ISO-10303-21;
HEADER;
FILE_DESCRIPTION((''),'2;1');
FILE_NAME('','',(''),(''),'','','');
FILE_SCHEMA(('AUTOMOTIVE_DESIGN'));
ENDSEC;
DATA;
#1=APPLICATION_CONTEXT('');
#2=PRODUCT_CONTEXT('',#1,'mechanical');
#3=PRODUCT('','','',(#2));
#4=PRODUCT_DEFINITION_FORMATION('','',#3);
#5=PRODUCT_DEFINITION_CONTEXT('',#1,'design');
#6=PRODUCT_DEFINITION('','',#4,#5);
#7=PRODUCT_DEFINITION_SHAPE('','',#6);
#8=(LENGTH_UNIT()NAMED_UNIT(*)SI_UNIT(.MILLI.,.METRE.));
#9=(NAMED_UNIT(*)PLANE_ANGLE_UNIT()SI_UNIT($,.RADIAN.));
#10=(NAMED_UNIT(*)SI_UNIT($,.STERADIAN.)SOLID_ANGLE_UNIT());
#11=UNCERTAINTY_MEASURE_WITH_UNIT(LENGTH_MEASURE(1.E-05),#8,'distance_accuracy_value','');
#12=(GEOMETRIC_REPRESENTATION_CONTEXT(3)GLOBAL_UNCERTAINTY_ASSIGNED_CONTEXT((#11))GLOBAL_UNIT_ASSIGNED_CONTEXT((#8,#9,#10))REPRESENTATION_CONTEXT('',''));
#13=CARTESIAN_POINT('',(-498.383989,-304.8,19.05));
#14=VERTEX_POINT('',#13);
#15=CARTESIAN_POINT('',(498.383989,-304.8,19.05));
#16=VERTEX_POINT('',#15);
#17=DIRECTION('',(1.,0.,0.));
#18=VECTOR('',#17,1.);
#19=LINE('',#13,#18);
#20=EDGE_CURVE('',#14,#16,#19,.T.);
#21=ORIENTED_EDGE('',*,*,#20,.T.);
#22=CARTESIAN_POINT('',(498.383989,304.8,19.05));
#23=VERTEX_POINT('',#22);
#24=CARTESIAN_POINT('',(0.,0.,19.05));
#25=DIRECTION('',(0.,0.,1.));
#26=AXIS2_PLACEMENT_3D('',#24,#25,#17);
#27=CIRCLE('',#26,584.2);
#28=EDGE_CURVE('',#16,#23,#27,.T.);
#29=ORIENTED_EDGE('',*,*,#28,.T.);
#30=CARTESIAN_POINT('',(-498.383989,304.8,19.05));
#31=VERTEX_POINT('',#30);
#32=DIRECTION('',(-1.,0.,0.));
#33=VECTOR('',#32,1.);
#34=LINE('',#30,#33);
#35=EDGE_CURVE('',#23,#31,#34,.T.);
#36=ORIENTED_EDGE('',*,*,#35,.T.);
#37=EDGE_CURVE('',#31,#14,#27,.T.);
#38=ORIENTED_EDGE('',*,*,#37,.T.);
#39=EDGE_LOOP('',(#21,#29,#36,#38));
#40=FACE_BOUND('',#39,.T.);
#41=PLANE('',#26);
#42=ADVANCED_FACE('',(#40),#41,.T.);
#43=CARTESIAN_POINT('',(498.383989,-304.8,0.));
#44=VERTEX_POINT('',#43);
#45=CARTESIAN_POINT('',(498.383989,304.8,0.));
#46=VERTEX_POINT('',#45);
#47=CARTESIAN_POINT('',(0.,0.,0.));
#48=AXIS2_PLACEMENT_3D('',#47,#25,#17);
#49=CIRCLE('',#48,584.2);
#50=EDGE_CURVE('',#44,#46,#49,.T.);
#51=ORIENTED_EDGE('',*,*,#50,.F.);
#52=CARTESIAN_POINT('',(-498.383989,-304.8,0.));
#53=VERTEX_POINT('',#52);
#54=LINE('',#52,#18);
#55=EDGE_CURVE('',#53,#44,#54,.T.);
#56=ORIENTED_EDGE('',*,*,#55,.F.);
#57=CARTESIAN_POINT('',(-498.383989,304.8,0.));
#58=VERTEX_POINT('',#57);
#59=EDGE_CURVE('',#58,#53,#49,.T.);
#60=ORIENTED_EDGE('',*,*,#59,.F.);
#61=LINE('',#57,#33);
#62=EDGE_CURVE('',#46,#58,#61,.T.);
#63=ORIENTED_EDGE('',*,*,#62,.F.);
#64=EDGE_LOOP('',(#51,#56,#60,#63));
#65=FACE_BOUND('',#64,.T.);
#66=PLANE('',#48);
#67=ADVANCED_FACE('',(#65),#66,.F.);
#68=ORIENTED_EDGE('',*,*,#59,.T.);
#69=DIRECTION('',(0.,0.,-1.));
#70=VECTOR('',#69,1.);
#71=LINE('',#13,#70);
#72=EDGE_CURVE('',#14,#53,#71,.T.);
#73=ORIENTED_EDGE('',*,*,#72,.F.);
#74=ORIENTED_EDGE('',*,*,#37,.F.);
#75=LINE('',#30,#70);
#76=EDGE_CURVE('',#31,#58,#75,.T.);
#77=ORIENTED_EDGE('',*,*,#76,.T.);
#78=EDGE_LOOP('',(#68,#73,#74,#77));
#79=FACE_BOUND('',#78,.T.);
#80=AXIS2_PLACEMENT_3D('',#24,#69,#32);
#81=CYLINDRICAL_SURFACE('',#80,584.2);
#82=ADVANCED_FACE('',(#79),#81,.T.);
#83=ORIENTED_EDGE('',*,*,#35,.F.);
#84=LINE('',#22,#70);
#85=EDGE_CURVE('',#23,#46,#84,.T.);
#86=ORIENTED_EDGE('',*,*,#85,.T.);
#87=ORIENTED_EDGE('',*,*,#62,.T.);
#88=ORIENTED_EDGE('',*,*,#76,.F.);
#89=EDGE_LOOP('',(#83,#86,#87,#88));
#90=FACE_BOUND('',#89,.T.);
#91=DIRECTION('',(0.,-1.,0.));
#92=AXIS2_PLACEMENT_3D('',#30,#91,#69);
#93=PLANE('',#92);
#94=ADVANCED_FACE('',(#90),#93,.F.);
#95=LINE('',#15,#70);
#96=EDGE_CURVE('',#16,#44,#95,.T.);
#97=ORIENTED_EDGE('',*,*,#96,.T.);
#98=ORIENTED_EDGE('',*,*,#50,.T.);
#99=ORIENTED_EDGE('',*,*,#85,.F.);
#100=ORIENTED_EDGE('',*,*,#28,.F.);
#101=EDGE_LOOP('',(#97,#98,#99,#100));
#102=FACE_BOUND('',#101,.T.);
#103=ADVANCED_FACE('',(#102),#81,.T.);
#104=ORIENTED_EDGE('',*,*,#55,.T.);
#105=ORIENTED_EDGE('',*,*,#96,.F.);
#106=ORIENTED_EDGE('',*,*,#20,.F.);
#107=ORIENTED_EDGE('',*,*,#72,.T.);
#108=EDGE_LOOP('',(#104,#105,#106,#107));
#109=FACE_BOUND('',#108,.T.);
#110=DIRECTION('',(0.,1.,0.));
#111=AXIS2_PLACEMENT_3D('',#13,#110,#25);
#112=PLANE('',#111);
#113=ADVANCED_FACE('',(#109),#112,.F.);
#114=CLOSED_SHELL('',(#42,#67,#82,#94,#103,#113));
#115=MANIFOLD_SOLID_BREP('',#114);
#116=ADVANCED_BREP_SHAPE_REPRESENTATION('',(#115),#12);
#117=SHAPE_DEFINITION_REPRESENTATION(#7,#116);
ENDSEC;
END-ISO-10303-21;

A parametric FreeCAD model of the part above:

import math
import FreeCAD as App
import Part
import Sketcher
from FreeCAD import Vector
Q = App.Units.Quantity

doc = App.newDocument("Part")
params = doc.addObject("Spreadsheet::Sheet", "Params")
for row, (alias, value) in enumerate([
    ("sketch1_radius", "23 in"),
    ("pad1_length", "0.75 in"),
], start=1):
    params.set(f"A{row}", alias)
    params.set(f"B{row}", "=" + value)
    params.setAlias(f"B{row}", alias)

body = doc.addObject("PartDesign::Body", "Body")

sketch1 = body.newObject("Sketcher::SketchObject", "Sketch")
sketch1.AttachmentSupport = (doc.getObject("XY_Plane"), [""])
sketch1.MapMode = "FlatFace"
sketch1.addGeometry(Part.LineSegment(Vector(498.383989, 304.8, 0), Vector(-498.383989, 304.8, 0)), False)
sketch1.addGeometry(Part.ArcOfCircle(Part.Circle(Vector(0, 0, 0), Vector(0, 0, 1), 584.2), math.radians(148.551019), math.radians(211.448981)), False)
sketch1.addGeometry(Part.LineSegment(Vector(-498.383989, -304.8, 0), Vector(498.383989, -304.8, 0)), False)
sketch1.addGeometry(Part.ArcOfCircle(Part.Circle(Vector(0, 0, 0), Vector(0, 0, 1), 584.2), math.radians(-31.448981), math.radians(31.448981)), False)
sketch1.addConstraint(Sketcher.Constraint("Coincident", 0, 2, 1, 1))
sketch1.addConstraint(Sketcher.Constraint("Coincident", 1, 2, 2, 1))
sketch1.addConstraint(Sketcher.Constraint("Coincident", 2, 2, 3, 1))
sketch1.addConstraint(Sketcher.Constraint("Coincident", 3, 2, 0, 1))
sketch1.addConstraint(Sketcher.Constraint("Horizontal", 0))
sketch1.addConstraint(Sketcher.Constraint("Horizontal", 2))
sketch1.addConstraint(Sketcher.Constraint("Coincident", 1, 3, -1, 1))
sketch1.addConstraint(Sketcher.Constraint("Coincident", 3, 3, -1, 1))
sketch1.addConstraint(Sketcher.Constraint("Equal", 1, 3))
sketch1.addConstraint(Sketcher.Constraint("Equal", 0, 2))
sketch1.addConstraint(Sketcher.Constraint("Radius", 1, Q("23 in")))
sketch1.addConstraint(Sketcher.Constraint("DistanceY", -1, 1, 0, 2, Q("12 in")))
sketch1.setExpression("Constraints[10]", "Params.sketch1_radius")
pad1 = body.newObject("PartDesign::Pad", "Pad")
pad1.Profile = sketch1
pad1.setExpression("Length", "Params.pad1_length")

doc.recompute()
